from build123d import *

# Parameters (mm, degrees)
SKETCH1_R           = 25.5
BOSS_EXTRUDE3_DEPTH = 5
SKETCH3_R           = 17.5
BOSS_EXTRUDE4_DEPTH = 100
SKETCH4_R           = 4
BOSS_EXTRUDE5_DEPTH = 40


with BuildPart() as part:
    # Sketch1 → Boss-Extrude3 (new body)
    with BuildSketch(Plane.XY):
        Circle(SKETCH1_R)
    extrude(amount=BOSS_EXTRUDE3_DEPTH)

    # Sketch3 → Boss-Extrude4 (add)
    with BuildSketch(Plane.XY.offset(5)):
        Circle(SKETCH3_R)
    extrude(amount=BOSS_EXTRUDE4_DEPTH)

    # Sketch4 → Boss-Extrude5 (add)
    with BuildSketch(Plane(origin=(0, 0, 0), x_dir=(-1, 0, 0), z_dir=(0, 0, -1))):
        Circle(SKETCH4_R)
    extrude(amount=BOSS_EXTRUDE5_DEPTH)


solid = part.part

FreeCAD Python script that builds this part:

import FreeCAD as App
import Part
import Sketcher
from FreeCAD import Vector

doc = App.newDocument("Part")
body = doc.addObject("PartDesign::Body", "Body")

# Sketch on XY plane
sketch1 = doc.addObject("Sketcher::SketchObject", "Sketch")
body.addObject(sketch1)
sketch1.AttachmentSupport = (doc.XY_Plane, [""])
sketch1.MapMode = "FlatFace"
sketch1.addGeometry(Part.Circle(Vector(0, 0, 0), Vector(0, 0, 1), 26), False)
sketch1.addConstraint([
    Sketcher.Constraint("Coincident", 0, 3, -1, 1),
    Sketcher.Constraint("Diameter", 0, 51.0),
])
pad1 = doc.addObject("PartDesign::Pad", "Pad")
body.addObject(pad1)
pad1.Profile = sketch1
pad1.Length = 5

# Sketch on XY plane
sketch2 = doc.addObject("Sketcher::SketchObject", "Sketch001")
body.addObject(sketch2)
sketch2.AttachmentSupport = (doc.XY_Plane, [""])
sketch2.MapMode = "FlatFace"
sketch2.AttachmentOffset = App.Placement(Vector(0, 0, 5), App.Rotation())
sketch2.addGeometry(Part.Circle(Vector(0, 0, 0), Vector(0, 0, 1), 18), False)
sketch2.addConstraint([
    Sketcher.Constraint("Coincident", 0, 3, -1, 1),
    Sketcher.Constraint("Diameter", 0, 35.0),
])
pad2 = doc.addObject("PartDesign::Pad", "Pad001")
body.addObject(pad2)
pad2.Profile = sketch2
pad2.Length = 100

# Sketch on XY plane
sketch3 = doc.addObject("Sketcher::SketchObject", "Sketch002")
body.addObject(sketch3)
sketch3.AttachmentSupport = (doc.XY_Plane, [""])
sketch3.MapMode = "FlatFace"
sketch3.addGeometry(Part.Circle(Vector(0, 0, 0), Vector(0, 0, 1), 4), False)
sketch3.addConstraint([
    Sketcher.Constraint("Coincident", 0, 3, -1, 1),
    Sketcher.Constraint("Diameter", 0, 8.0),
])
pad3 = doc.addObject("PartDesign::Pad", "Pad002")
body.addObject(pad3)
pad3.Profile = sketch3
pad3.Length = 40
pad3.Reversed = True

doc.recompute()
